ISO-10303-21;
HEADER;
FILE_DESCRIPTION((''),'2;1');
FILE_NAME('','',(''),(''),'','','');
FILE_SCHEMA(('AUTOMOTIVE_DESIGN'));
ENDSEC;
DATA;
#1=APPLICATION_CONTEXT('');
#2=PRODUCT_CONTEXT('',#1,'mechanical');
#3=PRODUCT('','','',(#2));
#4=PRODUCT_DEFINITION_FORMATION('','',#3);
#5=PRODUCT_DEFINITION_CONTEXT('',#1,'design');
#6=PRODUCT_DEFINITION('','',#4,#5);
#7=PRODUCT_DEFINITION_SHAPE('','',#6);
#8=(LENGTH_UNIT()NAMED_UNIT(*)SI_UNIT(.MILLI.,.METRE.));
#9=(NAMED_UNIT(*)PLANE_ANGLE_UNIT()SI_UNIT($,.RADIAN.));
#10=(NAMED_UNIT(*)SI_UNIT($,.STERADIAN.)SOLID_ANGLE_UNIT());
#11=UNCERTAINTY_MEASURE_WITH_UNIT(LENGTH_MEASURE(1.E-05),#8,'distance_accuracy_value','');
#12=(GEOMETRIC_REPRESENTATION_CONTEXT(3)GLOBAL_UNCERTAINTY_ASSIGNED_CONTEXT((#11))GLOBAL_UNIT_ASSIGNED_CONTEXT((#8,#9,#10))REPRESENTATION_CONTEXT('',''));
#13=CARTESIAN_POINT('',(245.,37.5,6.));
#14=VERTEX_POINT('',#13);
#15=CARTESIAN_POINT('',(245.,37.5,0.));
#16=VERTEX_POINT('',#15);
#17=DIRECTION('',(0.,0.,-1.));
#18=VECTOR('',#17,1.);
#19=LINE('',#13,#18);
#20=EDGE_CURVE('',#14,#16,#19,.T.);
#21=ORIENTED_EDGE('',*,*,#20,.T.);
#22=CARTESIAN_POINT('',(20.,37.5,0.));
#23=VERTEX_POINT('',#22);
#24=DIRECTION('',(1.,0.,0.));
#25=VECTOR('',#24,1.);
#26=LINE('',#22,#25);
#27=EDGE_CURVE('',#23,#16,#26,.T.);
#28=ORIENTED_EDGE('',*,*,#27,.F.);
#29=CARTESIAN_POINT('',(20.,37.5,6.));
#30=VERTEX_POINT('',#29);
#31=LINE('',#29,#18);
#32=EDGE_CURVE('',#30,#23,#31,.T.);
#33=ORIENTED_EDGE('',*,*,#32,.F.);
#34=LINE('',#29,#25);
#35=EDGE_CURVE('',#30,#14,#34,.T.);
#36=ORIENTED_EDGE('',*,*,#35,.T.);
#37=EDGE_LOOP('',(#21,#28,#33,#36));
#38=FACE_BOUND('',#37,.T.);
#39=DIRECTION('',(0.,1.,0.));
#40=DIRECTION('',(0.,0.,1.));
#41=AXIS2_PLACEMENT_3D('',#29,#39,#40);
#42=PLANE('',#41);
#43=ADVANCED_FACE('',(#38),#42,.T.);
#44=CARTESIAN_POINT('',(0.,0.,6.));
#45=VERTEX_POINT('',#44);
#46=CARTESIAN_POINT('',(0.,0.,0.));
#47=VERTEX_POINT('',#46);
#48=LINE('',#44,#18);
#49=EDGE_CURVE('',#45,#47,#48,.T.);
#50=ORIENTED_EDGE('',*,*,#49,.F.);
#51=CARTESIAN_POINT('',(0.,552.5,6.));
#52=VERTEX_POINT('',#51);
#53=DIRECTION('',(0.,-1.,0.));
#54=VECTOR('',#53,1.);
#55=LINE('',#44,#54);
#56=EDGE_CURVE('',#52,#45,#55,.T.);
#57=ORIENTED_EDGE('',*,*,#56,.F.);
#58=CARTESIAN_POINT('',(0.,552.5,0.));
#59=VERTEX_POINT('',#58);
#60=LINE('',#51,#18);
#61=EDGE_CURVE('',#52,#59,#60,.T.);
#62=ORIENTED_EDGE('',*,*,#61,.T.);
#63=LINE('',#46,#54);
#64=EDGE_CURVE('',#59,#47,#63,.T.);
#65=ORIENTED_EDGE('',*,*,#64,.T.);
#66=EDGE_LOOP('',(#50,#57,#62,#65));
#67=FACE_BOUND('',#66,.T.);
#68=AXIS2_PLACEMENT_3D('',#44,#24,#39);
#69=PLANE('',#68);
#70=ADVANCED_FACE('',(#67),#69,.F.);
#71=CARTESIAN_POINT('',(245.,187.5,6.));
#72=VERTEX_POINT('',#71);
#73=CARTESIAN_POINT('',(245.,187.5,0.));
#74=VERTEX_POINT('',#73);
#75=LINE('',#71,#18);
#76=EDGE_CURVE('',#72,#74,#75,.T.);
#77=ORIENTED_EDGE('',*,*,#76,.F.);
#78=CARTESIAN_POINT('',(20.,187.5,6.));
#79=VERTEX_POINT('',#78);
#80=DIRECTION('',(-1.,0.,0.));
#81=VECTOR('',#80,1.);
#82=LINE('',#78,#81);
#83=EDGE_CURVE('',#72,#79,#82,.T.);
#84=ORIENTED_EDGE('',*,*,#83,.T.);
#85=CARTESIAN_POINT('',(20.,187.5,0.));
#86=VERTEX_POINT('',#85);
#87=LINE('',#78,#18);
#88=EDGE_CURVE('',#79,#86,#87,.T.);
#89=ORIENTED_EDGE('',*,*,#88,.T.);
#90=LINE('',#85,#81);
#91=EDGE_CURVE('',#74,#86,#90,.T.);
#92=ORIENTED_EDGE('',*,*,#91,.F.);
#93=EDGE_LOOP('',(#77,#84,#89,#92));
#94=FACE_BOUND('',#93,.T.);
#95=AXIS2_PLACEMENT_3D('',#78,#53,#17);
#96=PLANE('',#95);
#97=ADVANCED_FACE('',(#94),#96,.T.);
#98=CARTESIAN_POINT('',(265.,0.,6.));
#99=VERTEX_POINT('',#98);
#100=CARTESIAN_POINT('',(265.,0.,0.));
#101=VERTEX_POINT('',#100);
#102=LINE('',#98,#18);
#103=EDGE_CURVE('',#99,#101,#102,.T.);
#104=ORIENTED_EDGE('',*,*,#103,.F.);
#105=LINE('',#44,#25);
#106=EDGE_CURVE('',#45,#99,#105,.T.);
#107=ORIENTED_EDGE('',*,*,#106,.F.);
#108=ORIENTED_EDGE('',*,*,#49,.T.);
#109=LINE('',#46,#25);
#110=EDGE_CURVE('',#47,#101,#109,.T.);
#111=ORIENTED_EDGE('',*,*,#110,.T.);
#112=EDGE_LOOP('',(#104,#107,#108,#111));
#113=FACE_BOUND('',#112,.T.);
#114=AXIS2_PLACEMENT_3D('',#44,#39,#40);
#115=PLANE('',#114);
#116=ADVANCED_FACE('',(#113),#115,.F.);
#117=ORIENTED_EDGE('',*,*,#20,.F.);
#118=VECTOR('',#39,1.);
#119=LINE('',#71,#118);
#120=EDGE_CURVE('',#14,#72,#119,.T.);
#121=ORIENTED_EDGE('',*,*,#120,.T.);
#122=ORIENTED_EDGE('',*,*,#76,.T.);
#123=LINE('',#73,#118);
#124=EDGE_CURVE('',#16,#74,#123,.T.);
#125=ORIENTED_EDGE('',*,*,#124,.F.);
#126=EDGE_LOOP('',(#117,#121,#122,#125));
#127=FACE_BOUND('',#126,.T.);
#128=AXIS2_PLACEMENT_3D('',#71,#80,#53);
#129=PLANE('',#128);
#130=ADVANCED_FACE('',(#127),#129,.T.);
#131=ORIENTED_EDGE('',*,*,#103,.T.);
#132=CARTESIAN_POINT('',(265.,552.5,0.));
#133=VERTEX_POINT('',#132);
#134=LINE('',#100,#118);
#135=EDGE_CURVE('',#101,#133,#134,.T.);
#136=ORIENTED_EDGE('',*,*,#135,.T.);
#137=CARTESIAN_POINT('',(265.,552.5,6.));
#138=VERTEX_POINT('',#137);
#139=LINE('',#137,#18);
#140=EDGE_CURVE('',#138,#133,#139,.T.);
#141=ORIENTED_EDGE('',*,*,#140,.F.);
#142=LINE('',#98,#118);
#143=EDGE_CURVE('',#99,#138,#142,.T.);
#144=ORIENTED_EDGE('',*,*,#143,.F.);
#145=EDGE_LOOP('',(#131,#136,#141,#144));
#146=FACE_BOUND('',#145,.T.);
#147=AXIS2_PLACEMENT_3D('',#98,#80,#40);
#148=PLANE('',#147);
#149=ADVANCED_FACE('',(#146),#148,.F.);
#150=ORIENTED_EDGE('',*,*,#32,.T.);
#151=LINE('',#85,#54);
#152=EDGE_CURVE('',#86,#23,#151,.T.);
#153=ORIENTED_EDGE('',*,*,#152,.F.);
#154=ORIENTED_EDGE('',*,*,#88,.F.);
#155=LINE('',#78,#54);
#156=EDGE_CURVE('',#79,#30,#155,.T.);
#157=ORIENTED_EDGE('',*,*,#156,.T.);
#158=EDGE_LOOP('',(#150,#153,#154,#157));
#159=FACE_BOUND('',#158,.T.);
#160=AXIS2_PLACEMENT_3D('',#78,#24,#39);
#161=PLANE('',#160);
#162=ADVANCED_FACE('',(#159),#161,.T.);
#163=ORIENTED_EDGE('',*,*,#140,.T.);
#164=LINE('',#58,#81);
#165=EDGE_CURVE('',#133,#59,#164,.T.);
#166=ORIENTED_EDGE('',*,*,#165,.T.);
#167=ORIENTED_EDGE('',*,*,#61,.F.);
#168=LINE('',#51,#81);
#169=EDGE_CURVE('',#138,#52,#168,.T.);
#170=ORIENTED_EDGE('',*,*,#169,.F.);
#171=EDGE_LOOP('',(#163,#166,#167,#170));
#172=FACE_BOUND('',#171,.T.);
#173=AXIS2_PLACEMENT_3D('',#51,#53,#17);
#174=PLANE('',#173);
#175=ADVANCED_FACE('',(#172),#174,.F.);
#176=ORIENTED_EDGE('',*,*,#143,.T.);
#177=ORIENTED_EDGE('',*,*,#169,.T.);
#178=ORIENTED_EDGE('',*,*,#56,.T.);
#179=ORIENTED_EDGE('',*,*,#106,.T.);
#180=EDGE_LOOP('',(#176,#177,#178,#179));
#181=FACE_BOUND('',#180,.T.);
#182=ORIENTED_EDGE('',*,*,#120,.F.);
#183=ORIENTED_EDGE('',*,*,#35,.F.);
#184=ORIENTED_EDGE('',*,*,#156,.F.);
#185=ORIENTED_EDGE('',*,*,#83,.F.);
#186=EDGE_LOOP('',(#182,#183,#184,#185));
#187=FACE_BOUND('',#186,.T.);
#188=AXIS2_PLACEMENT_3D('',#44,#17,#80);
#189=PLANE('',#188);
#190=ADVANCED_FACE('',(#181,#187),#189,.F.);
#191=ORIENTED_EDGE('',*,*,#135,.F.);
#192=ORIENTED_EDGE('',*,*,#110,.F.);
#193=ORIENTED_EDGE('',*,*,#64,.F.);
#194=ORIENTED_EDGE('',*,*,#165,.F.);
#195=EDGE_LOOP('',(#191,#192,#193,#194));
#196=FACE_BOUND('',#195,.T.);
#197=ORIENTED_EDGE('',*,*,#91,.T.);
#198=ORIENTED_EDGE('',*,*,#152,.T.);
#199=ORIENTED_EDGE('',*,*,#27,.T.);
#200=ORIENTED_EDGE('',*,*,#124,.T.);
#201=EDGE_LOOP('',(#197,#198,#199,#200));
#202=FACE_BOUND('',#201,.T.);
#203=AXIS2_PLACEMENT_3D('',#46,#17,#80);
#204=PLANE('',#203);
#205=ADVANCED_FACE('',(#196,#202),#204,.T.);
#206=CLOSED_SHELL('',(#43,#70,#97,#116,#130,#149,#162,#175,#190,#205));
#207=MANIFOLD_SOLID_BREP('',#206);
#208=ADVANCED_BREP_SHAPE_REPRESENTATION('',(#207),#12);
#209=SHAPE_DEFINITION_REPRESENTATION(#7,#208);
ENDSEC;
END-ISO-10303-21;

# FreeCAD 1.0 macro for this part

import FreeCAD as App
import Part
import Sketcher

V = App.Vector
Q = App.Units.Quantity

doc = App.newDocument("Part")
body = doc.addObject("PartDesign::Body", "Body")

sketch1 = body.newObject("Sketcher::SketchObject", "Sketch")
sketch1.AttachmentSupport = (doc.getObject("XY_Plane"), [""])
sketch1.MapMode = "FlatFace"
sketch1.addGeometry([
    Part.LineSegment(V(0, 552, 0), V(0, 0, 0)),
    Part.LineSegment(V(0, 0, 0), V(265, 0, 0)),
    Part.LineSegment(V(265, 0, 0), V(265, 552, 0)),
    Part.LineSegment(V(265, 552, 0), V(0, 552, 0)),
    Part.LineSegment(V(245, 38, 0), V(20, 38, 0)),
    Part.LineSegment(V(20, 38, 0), V(20, 188, 0)),
    Part.LineSegment(V(20, 188, 0), V(245, 188, 0)),
    Part.LineSegment(V(245, 188, 0), V(245, 38, 0)),
], False)
sketch1.addConstraint([
    Sketcher.Constraint("Coincident", 0, 2, 1, 1),
    Sketcher.Constraint("Coincident", 1, 2, 2, 1),
    Sketcher.Constraint("Coincident", 2, 2, 3, 1),
    Sketcher.Constraint("Coincident", 3, 2, 0, 1),
    Sketcher.Constraint("Coincident", 4, 2, 5, 1),
    Sketcher.Constraint("Coincident", 5, 2, 6, 1),
    Sketcher.Constraint("Coincident", 6, 2, 7, 1),
    Sketcher.Constraint("Coincident", 7, 2, 4, 1),
    Sketcher.Constraint("Vertical", 0),
    Sketcher.Constraint("Horizontal", 1),
    Sketcher.Constraint("Vertical", 2),
    Sketcher.Constraint("Horizontal", 3),
    Sketcher.Constraint("Horizontal", 4),
    Sketcher.Constraint("Vertical", 5),
    Sketcher.Constraint("Horizontal", 6),
    Sketcher.Constraint("Vertical", 7),
    Sketcher.Constraint("Coincident", 0, 2, -1, 1),
    Sketcher.Constraint("DistanceX", 1, 1, 1, 2, Q("265 mm")),
    Sketcher.Constraint("DistanceX", 4, 2, 4, 1, Q("225 mm")),
    Sketcher.Constraint("DistanceY", 5, 1, 5, 2, Q("150 mm")),
    Sketcher.Constraint("DistanceY", 0, 2, 0, 1, Q("552.5 mm")),
    Sketcher.Constraint("DistanceX", -1, 1, 4, 2, Q("20 mm")),
    Sketcher.Constraint("DistanceY", 4, 2, 3, 2, Q("515 mm")),
])
pad1 = body.newObject("PartDesign::Pad", "Pad")
pad1.Profile = sketch1
pad1.Length = 6

doc.recompute()
